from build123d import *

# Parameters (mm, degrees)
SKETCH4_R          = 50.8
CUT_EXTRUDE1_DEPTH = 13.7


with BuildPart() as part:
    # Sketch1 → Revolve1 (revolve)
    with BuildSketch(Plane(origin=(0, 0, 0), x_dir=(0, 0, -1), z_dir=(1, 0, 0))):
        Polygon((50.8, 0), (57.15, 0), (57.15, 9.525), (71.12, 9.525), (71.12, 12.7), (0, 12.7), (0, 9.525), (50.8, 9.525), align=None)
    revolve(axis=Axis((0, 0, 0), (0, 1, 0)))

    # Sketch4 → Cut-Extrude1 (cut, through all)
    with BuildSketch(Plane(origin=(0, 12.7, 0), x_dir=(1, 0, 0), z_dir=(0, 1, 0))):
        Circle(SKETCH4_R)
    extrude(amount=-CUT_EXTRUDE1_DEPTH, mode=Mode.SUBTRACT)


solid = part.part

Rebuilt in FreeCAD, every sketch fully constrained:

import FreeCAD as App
import Part
import Sketcher
from FreeCAD import Vector
Q = App.Units.Quantity

doc = App.newDocument("Part")
body = doc.addObject("PartDesign::Body", "Body")

# Sketch on YZ plane
sketch1 = body.newObject("Sketcher::SketchObject", "Sketch")
sketch1.AttachmentSupport = (doc.getObject("YZ_Plane"), [""])
sketch1.MapMode = "FlatFace"
sketch1.addGeometry([
    Part.LineSegment(Vector(0, -50.8, 0), Vector(0, -57.1, 0)),  # 0
    Part.LineSegment(Vector(0, -57.1, 0), Vector(9.5, -57.1, 0)),  # 1
    Part.LineSegment(Vector(9.5, -57.1, 0), Vector(9.5, -71.1, 0)),  # 2
    Part.LineSegment(Vector(9.5, -71.1, 0), Vector(12.7, -71.1, 0)),  # 3
    Part.LineSegment(Vector(12.7, -71.1, 0), Vector(12.7, 0, 0)),  # 4
    Part.LineSegment(Vector(12.7, 0, 0), Vector(9.5, 0, 0)),  # 5
    Part.LineSegment(Vector(9.5, 0, 0), Vector(9.5, -50.8, 0)),  # 6
    Part.LineSegment(Vector(9.5, -50.8, 0), Vector(0, -50.8, 0)),  # 7
], False)
sketch1.addConstraint([
    Sketcher.Constraint("Coincident", 0, 2, 1, 1),
    Sketcher.Constraint("Coincident", 1, 2, 2, 1),
    Sketcher.Constraint("Coincident", 2, 2, 3, 1),
    Sketcher.Constraint("Coincident", 3, 2, 4, 1),
    Sketcher.Constraint("Coincident", 4, 2, 5, 1),
    Sketcher.Constraint("Coincident", 5, 2, 6, 1),
    Sketcher.Constraint("Coincident", 6, 2, 7, 1),
    Sketcher.Constraint("Coincident", 7, 2, 0, 1),
    Sketcher.Constraint("Vertical", 0),
    Sketcher.Constraint("Horizontal", 1),
    Sketcher.Constraint("Vertical", 2),
    Sketcher.Constraint("Horizontal", 3),
    Sketcher.Constraint("Vertical", 4),
    Sketcher.Constraint("Horizontal", 5),
    Sketcher.Constraint("Vertical", 6),
    Sketcher.Constraint("Horizontal", 7),
    Sketcher.Constraint("PointOnObject", 0, 2, -2),
    Sketcher.Constraint("PointOnObject", 4, 2, -1),
    Sketcher.Constraint("Vertical", 2, 2, 5, 2),
    Sketcher.Constraint("DistanceY", 6, 2, 6, 1, Q("2 in")),
    Sketcher.Constraint("DistanceY", 4, 1, 4, 2, Q("2.8 in")),
    Sketcher.Constraint("DistanceY", 0, 2, 0, 1, Q("0.25 in")),
    Sketcher.Constraint("DistanceX", -1, 1, 3, 2, Q("0.5 in")),
    Sketcher.Constraint("DistanceX", 1, 1, 1, 2, Q("0.375 in")),
])
revolution = body.newObject("PartDesign::Revolution", "Revolution")
revolution.Profile = sketch1
revolution.ReferenceAxis = (sketch1, ["H_Axis"])
revolution.Angle = 360

# Sketch on XZ plane
sketch2 = body.newObject("Sketcher::SketchObject", "Sketch001")
sketch2.AttachmentSupport = (doc.getObject("XZ_Plane"), [""])
sketch2.MapMode = "FlatFace"
sketch2.AttachmentOffset = App.Placement(Vector(0, 0, -0.5 * 25.4), App.Rotation())
sketch2.addGeometry(Part.Circle(Vector(0, 0, 0), Vector(0, 0, 1), 51), False)
sketch2.addConstraint([
    Sketcher.Constraint("Coincident", 0, 3, -1, 1),
    Sketcher.Constraint("Diameter", 0, Q("4 in")),
])
pocket1 = body.newObject("PartDesign::Pocket", "Pocket")
pocket1.Profile = sketch2
pocket1.Type = "ThroughAll"
pocket1.Reversed = True

doc.recompute()
